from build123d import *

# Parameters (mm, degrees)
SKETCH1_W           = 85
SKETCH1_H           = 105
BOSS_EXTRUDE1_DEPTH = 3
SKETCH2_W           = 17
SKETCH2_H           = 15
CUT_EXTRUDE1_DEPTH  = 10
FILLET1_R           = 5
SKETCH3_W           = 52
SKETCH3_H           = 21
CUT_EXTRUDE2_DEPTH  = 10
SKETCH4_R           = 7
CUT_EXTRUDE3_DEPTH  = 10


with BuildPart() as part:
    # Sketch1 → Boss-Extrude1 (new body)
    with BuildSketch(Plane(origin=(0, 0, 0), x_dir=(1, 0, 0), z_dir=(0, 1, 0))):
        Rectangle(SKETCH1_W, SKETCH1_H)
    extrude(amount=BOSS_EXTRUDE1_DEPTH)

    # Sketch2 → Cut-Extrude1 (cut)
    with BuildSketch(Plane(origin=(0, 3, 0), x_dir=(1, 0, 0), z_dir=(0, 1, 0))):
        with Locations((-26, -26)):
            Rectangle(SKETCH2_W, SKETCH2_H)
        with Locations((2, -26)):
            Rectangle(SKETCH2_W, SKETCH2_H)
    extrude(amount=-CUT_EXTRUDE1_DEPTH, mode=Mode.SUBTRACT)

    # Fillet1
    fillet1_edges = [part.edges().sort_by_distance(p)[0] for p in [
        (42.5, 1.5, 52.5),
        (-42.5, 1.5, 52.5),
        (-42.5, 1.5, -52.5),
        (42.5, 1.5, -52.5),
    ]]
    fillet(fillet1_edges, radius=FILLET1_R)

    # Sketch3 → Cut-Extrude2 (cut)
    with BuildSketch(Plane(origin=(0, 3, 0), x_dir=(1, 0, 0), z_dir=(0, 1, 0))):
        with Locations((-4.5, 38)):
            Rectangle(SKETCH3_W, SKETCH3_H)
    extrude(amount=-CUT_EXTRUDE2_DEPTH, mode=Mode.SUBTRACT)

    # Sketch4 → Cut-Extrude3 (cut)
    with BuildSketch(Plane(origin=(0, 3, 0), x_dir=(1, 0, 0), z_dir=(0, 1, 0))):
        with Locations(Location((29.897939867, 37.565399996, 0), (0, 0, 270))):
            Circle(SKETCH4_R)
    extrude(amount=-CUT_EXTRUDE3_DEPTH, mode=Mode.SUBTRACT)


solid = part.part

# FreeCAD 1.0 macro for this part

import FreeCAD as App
import Part
import Sketcher
from FreeCAD import Vector
Q = App.Units.Quantity


def edges_at(feature, points):
    """Names of the edges that pass closest to the given points."""
    edges = feature.Shape.Edges
    near = lambda p: min(range(len(edges)), key=lambda i: edges[i].distToShape(Part.Vertex(*p))[0])
    return sorted({f"Edge{near(p) + 1}" for p in points})


def add_polygon(sketch, points):
    """Adds a closed chain of lines whose ends are joined by coincident constraints."""
    first, n = sketch.GeometryCount, len(points)
    for a, b in zip(points, points[1:] + points[:1]):
        sketch.addGeometry(Part.LineSegment(App.Vector(*a, 0), App.Vector(*b, 0)), False)
    for i in range(n):
        sketch.addConstraint(Sketcher.Constraint("Coincident", first + i, 2, first + (i + 1) % n, 1))

doc = App.newDocument("Part")
body = doc.addObject("PartDesign::Body", "Body")

sketch1 = body.newObject("Sketcher::SketchObject", "Sketch")
sketch1.AttachmentSupport = (doc.getObject("XZ_Plane"), [""])
sketch1.MapMode = "FlatFace"
add_polygon(sketch1, [(-42, -52), (-42, 52), (42, 52), (42, -52)])
sketch1.addConstraint(Sketcher.Constraint("Vertical", 0))
sketch1.addConstraint(Sketcher.Constraint("Horizontal", 1))
sketch1.addConstraint(Sketcher.Constraint("Vertical", 2))
sketch1.addConstraint(Sketcher.Constraint("Horizontal", 3))
sketch1.addConstraint(Sketcher.Constraint("Symmetric", 0, 2, 2, 2, -1, 1))
sketch1.addConstraint(Sketcher.Constraint("DistanceX", 1, 1, 1, 2, Q("85 mm")))
sketch1.addConstraint(Sketcher.Constraint("DistanceY", 0, 1, 0, 2, Q("105 mm")))
pad1 = body.newObject("PartDesign::Pad", "Pad")
pad1.Profile = sketch1
pad1.Length = 3
pad1.Reversed = True

sketch2 = body.newObject("Sketcher::SketchObject", "Sketch001")
sketch2.AttachmentSupport = (doc.getObject("XZ_Plane"), [""])
sketch2.MapMode = "FlatFace"
sketch2.AttachmentOffset = App.Placement(Vector(0, 0, -3), App.Rotation())
add_polygon(sketch2, [(-34, 18), (-34, 34), (-18, 34), (-18, 18)])
add_polygon(sketch2, [(-6, 18), (-6, 34), (10, 34), (10, 18)])
sketch2.addConstraint(Sketcher.Constraint("Vertical", 0))
sketch2.addConstraint(Sketcher.Constraint("Horizontal", 1))
sketch2.addConstraint(Sketcher.Constraint("Vertical", 2))
sketch2.addConstraint(Sketcher.Constraint("Horizontal", 3))
sketch2.addConstraint(Sketcher.Constraint("Vertical", 4))
sketch2.addConstraint(Sketcher.Constraint("Horizontal", 5))
sketch2.addConstraint(Sketcher.Constraint("Vertical", 6))
sketch2.addConstraint(Sketcher.Constraint("Horizontal", 7))
sketch2.addConstraint(Sketcher.Constraint("Horizontal", 1, 2, 4, 2))
sketch2.addConstraint(Sketcher.Constraint("Horizontal", 3, 2, 6, 2))
sketch2.addConstraint(Sketcher.Constraint("Equal", 3, 5))
sketch2.addConstraint(Sketcher.Constraint("DistanceX", 1, 1, 1, 2, Q("17 mm")))
sketch2.addConstraint(Sketcher.Constraint("DistanceY", 0, 1, 0, 2, Q("15 mm")))
sketch2.addConstraint(Sketcher.Constraint("DistanceX", 1, 2, 4, 2, Q("11 mm")))
sketch2.addConstraint(Sketcher.Constraint("DistanceX", 0, 2, -1, 1, Q("34.5 mm")))
sketch2.addConstraint(Sketcher.Constraint("DistanceY", -1, 1, 0, 2, Q("33.5 mm")))
pocket1 = body.newObject("PartDesign::Pocket", "Pocket")
pocket1.Profile = sketch2
pocket1.Length = 10
pocket1.Reversed = True
doc.recompute()

fillet = body.newObject("PartDesign::Fillet", "Fillet")
fillet.Base = (pocket1, edges_at(pocket1, [
    (42.5, 1.5, 52.5),
    (-42.5, 1.5, 52.5),
    (-42.5, 1.5, -52.5),
    (42.5, 1.5, -52.5),
]))
fillet.Radius = 5

sketch3 = body.newObject("Sketcher::SketchObject", "Sketch002")
sketch3.AttachmentSupport = (doc.getObject("XZ_Plane"), [""])
sketch3.MapMode = "FlatFace"
sketch3.AttachmentOffset = App.Placement(Vector(0, 0, -3), App.Rotation())
add_polygon(sketch3, [(-30, -48), (-30, -28), (22, -28), (22, -48)])
sketch3.addConstraint(Sketcher.Constraint("Vertical", 0))
sketch3.addConstraint(Sketcher.Constraint("Horizontal", 1))
sketch3.addConstraint(Sketcher.Constraint("Vertical", 2))
sketch3.addConstraint(Sketcher.Constraint("Horizontal", 3))
sketch3.addConstraint(Sketcher.Constraint("DistanceX", 1, 1, 1, 2, Q("52 mm")))
sketch3.addConstraint(Sketcher.Constraint("DistanceY", 0, 1, 0, 2, Q("21 mm")))
sketch3.addConstraint(Sketcher.Constraint("DistanceX", 0, 2, -1, 1, Q("30.5 mm")))
sketch3.addConstraint(Sketcher.Constraint("DistanceY", 0, 2, -1, 1, Q("27.5 mm")))
pocket2 = body.newObject("PartDesign::Pocket", "Pocket001")
pocket2.Profile = sketch3
pocket2.Length = 10
pocket2.Reversed = True

sketch4 = body.newObject("Sketcher::SketchObject", "Sketch003")
sketch4.AttachmentSupport = (doc.getObject("XZ_Plane"), [""])
sketch4.MapMode = "FlatFace"
sketch4.AttachmentOffset = App.Placement(Vector(0, 0, -3), App.Rotation())
sketch4.addGeometry(Part.Circle(Vector(30, -38, 0), Vector(0, 0, 1), 7), False)
sketch4.addConstraint(Sketcher.Constraint("Diameter", 0, Q("14 mm")))
sketch4.addConstraint(Sketcher.Constraint("DistanceY", 0, 3, -1, 1, Q("37.5654 mm")))
sketch4.addConstraint(Sketcher.Constraint("DistanceX", -1, 1, 0, 3, Q("29.89794 mm")))
pocket3 = body.newObject("PartDesign::Pocket", "Pocket002")
pocket3.Profile = sketch4
pocket3.Length = 10
pocket3.Reversed = True

doc.recompute()
